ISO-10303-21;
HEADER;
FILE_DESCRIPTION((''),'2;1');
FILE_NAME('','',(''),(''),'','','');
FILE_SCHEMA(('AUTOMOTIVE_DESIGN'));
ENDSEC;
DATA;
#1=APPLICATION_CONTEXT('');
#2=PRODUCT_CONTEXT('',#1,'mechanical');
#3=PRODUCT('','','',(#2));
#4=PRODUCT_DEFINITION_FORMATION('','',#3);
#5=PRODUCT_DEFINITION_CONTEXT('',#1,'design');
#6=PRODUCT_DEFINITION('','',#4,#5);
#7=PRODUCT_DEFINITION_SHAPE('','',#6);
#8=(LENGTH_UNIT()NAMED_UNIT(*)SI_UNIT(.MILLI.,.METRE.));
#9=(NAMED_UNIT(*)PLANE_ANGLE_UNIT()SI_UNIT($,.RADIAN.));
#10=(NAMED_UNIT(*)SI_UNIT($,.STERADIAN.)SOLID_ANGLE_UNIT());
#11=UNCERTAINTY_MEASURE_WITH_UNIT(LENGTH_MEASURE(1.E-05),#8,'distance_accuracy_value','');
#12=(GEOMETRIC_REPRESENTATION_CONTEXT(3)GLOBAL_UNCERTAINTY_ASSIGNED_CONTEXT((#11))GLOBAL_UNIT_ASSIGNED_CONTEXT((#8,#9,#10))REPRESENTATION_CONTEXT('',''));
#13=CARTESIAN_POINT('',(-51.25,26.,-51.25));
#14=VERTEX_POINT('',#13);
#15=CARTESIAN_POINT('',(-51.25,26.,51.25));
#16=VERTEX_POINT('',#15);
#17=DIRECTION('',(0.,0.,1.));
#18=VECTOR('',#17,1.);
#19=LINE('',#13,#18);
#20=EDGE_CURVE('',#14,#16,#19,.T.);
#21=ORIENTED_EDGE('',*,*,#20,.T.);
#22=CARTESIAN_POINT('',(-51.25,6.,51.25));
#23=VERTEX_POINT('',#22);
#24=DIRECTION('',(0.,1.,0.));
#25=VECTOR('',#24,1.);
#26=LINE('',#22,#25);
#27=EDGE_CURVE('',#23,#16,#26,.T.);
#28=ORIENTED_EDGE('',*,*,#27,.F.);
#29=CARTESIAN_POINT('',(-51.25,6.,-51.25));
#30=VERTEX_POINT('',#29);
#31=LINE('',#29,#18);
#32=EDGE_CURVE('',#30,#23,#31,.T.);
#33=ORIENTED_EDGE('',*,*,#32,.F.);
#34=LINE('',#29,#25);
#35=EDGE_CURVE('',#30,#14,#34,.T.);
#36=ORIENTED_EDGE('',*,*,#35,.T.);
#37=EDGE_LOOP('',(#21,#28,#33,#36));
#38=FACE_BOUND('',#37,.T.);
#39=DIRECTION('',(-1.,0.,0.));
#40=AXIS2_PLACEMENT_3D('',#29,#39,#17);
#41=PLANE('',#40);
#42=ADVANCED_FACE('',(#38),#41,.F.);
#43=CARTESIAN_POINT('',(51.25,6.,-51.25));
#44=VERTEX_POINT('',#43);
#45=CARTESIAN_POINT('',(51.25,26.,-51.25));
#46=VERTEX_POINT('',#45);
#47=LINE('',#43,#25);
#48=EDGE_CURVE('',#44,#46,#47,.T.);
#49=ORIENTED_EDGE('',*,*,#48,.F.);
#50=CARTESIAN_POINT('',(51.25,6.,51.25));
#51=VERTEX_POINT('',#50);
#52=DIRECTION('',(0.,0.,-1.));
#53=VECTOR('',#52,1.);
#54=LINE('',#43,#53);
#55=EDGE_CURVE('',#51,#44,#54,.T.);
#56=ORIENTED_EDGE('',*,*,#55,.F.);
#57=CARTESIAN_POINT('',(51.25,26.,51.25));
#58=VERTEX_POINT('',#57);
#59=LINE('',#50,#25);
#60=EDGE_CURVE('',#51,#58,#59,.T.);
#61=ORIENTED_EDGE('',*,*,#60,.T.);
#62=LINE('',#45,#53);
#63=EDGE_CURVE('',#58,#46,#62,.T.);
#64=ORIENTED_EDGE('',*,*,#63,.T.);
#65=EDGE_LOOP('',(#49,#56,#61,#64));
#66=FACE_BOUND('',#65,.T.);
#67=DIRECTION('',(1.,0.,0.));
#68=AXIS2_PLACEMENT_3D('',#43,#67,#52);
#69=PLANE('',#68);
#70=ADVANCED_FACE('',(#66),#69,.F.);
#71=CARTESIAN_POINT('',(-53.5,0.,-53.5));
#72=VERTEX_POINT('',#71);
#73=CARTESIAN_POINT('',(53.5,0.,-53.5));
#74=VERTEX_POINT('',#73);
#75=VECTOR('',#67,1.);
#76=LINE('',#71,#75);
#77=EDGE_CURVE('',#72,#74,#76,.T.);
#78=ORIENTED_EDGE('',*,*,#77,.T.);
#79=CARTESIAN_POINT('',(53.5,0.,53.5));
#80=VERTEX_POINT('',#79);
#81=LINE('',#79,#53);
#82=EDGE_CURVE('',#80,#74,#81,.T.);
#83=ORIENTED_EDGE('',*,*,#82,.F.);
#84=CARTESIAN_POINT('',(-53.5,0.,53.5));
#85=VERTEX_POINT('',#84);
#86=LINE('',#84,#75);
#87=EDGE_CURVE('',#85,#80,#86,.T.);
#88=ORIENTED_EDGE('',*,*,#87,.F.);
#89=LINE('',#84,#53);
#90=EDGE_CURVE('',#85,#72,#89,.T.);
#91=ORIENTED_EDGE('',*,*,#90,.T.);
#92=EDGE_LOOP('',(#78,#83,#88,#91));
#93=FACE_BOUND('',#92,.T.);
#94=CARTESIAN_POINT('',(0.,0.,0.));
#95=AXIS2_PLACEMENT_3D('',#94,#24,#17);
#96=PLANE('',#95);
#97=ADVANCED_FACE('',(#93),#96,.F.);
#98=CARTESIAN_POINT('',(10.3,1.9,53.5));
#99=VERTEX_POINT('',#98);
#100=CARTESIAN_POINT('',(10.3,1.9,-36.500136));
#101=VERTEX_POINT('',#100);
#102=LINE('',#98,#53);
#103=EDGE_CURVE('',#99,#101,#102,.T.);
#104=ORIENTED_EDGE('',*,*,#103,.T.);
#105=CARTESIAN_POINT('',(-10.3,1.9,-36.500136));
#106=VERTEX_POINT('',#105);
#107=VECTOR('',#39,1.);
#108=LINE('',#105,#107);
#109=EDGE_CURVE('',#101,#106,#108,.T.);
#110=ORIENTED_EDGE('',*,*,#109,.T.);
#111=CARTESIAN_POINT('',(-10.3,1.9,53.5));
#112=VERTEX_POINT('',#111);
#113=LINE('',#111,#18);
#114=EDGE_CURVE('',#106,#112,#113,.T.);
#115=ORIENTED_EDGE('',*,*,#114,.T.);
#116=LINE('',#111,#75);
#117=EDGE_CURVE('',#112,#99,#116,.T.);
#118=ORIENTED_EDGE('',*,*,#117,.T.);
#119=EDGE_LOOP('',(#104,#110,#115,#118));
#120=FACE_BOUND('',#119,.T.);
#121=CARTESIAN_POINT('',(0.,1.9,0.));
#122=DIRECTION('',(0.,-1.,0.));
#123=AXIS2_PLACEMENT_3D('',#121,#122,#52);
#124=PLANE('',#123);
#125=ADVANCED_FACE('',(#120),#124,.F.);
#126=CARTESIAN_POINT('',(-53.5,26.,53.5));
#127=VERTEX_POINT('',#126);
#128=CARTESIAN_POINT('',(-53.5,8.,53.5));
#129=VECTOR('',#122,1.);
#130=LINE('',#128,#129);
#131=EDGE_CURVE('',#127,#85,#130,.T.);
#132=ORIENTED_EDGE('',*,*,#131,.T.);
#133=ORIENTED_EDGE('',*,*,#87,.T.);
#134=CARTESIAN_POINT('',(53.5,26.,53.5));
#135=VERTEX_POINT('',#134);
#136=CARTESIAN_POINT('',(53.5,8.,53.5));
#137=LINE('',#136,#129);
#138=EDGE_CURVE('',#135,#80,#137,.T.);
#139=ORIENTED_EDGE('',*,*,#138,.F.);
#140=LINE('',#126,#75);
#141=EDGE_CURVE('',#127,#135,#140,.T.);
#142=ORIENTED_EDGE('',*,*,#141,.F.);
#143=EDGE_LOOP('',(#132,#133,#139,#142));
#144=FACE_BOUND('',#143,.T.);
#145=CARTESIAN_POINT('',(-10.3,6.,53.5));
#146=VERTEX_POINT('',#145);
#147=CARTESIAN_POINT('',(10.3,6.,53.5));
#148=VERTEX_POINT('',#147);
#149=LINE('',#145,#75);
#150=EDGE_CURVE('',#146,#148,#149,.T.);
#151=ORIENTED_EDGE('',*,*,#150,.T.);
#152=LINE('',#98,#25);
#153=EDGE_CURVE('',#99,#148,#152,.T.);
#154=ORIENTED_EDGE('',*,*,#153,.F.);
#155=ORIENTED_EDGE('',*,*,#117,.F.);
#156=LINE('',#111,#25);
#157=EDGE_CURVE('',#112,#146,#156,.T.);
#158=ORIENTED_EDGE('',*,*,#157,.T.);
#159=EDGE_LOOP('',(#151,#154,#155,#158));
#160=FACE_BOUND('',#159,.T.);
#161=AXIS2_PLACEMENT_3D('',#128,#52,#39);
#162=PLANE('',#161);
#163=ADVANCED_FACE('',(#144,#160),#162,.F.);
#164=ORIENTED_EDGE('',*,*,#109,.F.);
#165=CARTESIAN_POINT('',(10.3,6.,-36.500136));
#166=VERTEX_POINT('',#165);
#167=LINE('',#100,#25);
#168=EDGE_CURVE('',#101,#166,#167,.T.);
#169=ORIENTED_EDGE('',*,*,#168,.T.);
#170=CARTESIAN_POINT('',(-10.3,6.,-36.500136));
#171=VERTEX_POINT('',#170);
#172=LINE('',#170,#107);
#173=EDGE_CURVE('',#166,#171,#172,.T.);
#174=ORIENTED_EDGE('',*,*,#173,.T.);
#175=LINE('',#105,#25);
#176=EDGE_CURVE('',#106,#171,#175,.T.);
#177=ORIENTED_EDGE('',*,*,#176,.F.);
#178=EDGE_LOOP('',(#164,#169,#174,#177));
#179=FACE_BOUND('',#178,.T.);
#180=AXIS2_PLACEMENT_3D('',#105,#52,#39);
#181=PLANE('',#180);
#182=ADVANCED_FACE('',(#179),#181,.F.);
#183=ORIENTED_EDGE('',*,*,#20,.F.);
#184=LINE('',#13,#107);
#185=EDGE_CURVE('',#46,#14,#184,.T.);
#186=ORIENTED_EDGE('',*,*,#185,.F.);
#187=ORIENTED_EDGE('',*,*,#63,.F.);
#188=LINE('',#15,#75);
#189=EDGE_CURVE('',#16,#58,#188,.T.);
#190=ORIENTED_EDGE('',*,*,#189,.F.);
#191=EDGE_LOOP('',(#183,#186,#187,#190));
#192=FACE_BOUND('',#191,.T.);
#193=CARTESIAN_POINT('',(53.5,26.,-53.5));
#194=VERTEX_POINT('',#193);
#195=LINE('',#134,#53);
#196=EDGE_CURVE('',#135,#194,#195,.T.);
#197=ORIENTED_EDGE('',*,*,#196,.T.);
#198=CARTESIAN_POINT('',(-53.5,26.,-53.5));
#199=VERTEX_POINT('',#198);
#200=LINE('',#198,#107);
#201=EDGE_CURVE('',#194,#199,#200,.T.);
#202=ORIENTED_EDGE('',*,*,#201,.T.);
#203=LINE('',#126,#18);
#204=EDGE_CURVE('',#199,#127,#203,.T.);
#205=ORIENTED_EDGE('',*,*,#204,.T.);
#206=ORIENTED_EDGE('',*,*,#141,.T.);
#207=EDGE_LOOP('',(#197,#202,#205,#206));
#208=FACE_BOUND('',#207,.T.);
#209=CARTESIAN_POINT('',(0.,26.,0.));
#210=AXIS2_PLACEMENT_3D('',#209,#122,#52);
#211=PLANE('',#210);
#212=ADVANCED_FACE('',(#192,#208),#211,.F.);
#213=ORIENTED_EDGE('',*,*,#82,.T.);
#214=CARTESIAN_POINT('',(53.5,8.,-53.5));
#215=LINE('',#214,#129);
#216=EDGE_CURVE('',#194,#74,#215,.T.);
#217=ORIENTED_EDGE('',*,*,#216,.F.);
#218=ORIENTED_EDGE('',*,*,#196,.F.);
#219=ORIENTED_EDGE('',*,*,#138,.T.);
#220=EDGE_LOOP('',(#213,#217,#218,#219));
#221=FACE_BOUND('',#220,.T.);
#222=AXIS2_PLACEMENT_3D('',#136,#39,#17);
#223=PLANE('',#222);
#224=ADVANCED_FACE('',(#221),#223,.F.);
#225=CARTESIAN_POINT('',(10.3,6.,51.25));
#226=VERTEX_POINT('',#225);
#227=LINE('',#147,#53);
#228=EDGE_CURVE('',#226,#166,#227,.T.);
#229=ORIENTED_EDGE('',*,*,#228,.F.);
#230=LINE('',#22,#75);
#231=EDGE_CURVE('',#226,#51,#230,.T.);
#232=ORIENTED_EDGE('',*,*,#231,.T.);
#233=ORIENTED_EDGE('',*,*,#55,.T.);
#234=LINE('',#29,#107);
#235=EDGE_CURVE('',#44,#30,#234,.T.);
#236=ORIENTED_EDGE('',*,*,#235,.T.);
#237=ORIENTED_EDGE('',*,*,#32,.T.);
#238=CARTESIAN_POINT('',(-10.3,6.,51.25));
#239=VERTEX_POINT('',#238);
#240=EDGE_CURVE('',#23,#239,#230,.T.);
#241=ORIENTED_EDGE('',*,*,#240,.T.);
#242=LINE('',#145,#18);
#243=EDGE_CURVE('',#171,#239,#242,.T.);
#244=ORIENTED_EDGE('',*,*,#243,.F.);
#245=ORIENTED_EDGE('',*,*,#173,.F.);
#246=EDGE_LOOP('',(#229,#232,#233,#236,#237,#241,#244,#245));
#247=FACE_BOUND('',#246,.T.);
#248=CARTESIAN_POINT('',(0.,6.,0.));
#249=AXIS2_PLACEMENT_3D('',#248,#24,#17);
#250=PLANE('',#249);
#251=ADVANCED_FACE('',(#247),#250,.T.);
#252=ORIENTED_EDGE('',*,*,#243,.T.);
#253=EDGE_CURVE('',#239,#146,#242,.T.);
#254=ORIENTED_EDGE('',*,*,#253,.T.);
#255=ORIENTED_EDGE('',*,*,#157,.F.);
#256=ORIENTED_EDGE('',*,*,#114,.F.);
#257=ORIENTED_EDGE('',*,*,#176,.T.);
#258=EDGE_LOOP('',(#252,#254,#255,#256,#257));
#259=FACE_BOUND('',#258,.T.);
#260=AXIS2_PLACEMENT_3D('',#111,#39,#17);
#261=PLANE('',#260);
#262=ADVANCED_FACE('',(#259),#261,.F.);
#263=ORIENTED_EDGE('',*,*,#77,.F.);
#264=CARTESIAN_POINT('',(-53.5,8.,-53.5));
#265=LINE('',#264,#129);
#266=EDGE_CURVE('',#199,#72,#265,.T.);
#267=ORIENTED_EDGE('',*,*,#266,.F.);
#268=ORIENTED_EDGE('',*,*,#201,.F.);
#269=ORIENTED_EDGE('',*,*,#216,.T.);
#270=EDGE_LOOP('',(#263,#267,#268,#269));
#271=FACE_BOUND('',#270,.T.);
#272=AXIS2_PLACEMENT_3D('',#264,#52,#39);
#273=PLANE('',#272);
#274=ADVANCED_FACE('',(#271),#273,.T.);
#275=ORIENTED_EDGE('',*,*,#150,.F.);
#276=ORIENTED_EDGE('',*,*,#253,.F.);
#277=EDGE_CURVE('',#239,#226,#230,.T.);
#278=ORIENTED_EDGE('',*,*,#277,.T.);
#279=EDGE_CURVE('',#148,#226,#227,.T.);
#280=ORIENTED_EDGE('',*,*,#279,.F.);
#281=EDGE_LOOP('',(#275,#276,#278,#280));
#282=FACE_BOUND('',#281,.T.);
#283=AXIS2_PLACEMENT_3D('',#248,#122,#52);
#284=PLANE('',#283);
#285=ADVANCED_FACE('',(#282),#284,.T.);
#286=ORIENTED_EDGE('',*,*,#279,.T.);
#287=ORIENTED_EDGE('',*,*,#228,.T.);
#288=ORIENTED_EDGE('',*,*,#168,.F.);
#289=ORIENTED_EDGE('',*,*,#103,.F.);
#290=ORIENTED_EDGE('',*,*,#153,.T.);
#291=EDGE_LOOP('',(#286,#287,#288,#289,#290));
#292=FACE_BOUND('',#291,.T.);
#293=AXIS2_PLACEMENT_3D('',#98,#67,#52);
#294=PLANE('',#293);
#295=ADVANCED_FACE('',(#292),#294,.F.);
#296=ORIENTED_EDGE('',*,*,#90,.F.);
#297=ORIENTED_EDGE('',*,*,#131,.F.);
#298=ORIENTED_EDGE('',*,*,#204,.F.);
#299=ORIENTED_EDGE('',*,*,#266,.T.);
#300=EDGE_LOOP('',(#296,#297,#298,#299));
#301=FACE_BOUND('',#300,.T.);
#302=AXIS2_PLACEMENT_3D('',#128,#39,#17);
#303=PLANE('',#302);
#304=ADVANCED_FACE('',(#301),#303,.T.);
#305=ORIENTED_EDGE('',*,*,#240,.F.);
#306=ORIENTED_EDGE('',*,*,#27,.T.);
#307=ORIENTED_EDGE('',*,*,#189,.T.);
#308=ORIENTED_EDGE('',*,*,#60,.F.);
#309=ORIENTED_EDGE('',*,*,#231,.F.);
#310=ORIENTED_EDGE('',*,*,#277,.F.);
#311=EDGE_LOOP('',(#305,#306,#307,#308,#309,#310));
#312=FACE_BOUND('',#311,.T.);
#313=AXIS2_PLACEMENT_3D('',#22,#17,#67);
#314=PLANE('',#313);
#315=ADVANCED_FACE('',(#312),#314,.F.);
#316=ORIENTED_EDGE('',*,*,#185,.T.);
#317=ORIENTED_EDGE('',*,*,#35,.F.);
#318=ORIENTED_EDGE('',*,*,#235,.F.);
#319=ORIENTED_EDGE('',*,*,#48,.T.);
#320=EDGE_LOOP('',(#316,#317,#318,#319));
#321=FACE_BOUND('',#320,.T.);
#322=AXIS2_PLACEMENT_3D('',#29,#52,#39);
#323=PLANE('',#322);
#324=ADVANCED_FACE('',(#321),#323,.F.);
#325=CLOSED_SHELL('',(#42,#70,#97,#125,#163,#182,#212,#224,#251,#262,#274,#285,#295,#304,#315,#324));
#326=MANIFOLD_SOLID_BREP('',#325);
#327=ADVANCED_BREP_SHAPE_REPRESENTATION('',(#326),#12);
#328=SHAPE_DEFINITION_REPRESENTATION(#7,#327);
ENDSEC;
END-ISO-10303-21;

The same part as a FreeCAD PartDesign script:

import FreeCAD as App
import Part
import Sketcher

V = App.Vector
Q = App.Units.Quantity


def add_polygon(sketch, points):
    """Adds a closed chain of lines whose ends are joined by coincident constraints."""
    first, n = sketch.GeometryCount, len(points)
    for a, b in zip(points, points[1:] + points[:1]):
        sketch.addGeometry(Part.LineSegment(App.Vector(*a, 0), App.Vector(*b, 0)), False)
    for i in range(n):
        sketch.addConstraint(Sketcher.Constraint("Coincident", first + i, 2, first + (i + 1) % n, 1))

doc = App.newDocument("Part")
body = doc.addObject("PartDesign::Body", "Body")

# Sketch on XZ plane
sketch1 = body.newObject("Sketcher::SketchObject", "Sketch")
sketch1.AttachmentSupport = (doc.getObject("XZ_Plane"), [""])
sketch1.MapMode = "FlatFace"
add_polygon(sketch1, [(-54, -54), (-54, 54), (54, 54), (54, -54)])  # lines 0-3
sketch1.addConstraint([
    Sketcher.Constraint("Vertical", 0),
    Sketcher.Constraint("Horizontal", 1),
    Sketcher.Constraint("Vertical", 2),
    Sketcher.Constraint("Horizontal", 3),
    Sketcher.Constraint("Symmetric", 0, 2, 2, 2, -1, 1),
    Sketcher.Constraint("Equal", 3, 0),
    Sketcher.Constraint("DistanceX", 1, 1, 1, 2, Q("107 mm")),
])
pad1 = body.newObject("PartDesign::Pad", "Pad")
pad1.Profile = sketch1
pad1.Length = 8
pad1.Reversed = True

# Sketch on XZ plane
sketch2 = body.newObject("Sketcher::SketchObject", "Sketch001")
sketch2.AttachmentSupport = (doc.getObject("XZ_Plane"), [""])
sketch2.MapMode = "FlatFace"
sketch2.AttachmentOffset = App.Placement(V(0, 0, -8), App.Rotation())
add_polygon(sketch2, [(-54, -54), (-54, 54), (54, 54), (54, -54)])  # lines 0-3
sketch2.addConstraint([
    Sketcher.Constraint("Vertical", 0),
    Sketcher.Constraint("Horizontal", 1),
    Sketcher.Constraint("Vertical", 2),
    Sketcher.Constraint("Horizontal", 3),
    Sketcher.Constraint("Symmetric", 0, 2, 2, 2, -1, 1),
    Sketcher.Constraint("Equal", 3, 0),
    Sketcher.Constraint("DistanceX", 1, 1, 1, 2, Q("107 mm")),
])
pad2 = body.newObject("PartDesign::Pad", "Pad001")
pad2.Profile = sketch2
pad2.Length = 18
pad2.Reversed = True

# Sketch on XZ plane
sketch3 = body.newObject("Sketcher::SketchObject", "Sketch002")
sketch3.AttachmentSupport = (doc.getObject("XZ_Plane"), [""])
sketch3.MapMode = "FlatFace"
sketch3.AttachmentOffset = App.Placement(V(0, 0, -26), App.Rotation())
add_polygon(sketch3, [(-51, -51), (-51, 51), (51, 51), (51, -51)])  # lines 0-3
sketch3.addConstraint([
    Sketcher.Constraint("Vertical", 0),
    Sketcher.Constraint("Horizontal", 1),
    Sketcher.Constraint("Vertical", 2),
    Sketcher.Constraint("Horizontal", 3),
    Sketcher.Constraint("Symmetric", 0, 2, 2, 2, -1, 1),
    Sketcher.Constraint("Equal", 3, 0),
    Sketcher.Constraint("DistanceX", 1, 1, 1, 2, Q("102.5 mm")),
])
pocket1 = body.newObject("PartDesign::Pocket", "Pocket")
pocket1.Profile = sketch3
pocket1.Length = 20
pocket1.Reversed = True

# Sketch on XZ plane
sketch4 = body.newObject("Sketcher::SketchObject", "Sketch003")
sketch4.AttachmentSupport = (doc.getObject("XZ_Plane"), [""])
sketch4.MapMode = "FlatFace"
sketch4.AttachmentOffset = App.Placement(V(0, 0, -6), App.Rotation())
add_polygon(sketch4, [(-10, -37), (-10, 54), (10, 54), (10, -37)])  # lines 0-3
sketch4.addConstraint([
    Sketcher.Constraint("Vertical", 0),
    Sketcher.Constraint("Horizontal", 1),
    Sketcher.Constraint("Vertical", 2),
    Sketcher.Constraint("Horizontal", 3),
    Sketcher.Constraint("DistanceX", 1, 1, 1, 2, Q("20.6 mm")),
    Sketcher.Constraint("DistanceX", 0, 2, -1, 1, Q("10.3 mm")),
    Sketcher.Constraint("DistanceY", -1, 1, 0, 2, Q("53.5 mm")),
    Sketcher.Constraint("DistanceY", 0, 1, 0, 2, Q("90.000136 mm")),
])
pocket2 = body.newObject("PartDesign::Pocket", "Pocket001")
pocket2.Profile = sketch4
pocket2.Length = 4.1
pocket2.Reversed = True

doc.recompute()
